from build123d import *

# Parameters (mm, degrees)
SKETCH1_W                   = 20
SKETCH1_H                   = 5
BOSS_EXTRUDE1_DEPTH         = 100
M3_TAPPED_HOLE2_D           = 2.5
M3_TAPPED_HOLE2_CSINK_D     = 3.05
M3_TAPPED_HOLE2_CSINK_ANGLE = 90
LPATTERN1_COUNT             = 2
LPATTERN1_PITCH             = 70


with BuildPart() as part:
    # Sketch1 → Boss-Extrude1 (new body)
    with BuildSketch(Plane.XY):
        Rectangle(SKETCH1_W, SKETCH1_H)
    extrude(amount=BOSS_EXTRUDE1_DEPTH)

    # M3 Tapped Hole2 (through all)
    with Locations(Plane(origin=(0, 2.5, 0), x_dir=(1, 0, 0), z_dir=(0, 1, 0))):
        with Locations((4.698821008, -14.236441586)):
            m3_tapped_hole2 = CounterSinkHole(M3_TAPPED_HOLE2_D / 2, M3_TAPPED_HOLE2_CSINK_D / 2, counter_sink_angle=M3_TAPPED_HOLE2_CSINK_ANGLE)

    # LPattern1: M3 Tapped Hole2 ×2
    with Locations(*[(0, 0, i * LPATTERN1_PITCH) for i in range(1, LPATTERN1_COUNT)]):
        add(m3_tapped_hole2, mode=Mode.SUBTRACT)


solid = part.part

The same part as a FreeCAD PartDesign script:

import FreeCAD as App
import Part
import Sketcher

V = App.Vector
Q = App.Units.Quantity

doc = App.newDocument("Part")
params = doc.addObject("Spreadsheet::Sheet", "Params")
for row, (alias, value) in enumerate([
    ("sketch1_width", "20 mm"),
    ("sketch1_height", "5 mm"),
    ("pad1_length", "100 mm"),
    ("sketch2_diameter", "2.5 mm"),
    ("hole_diameter", "2.5 mm"),
    ("hole_csink_diameter", "3.05 mm"),
    ("linearpattern_pitch", "70 mm"),
], start=1):
    params.set(f"A{row}", alias)
    params.set(f"B{row}", "=" + value)
    params.setAlias(f"B{row}", alias)

body = doc.addObject("PartDesign::Body", "Body")

sketch1 = body.newObject("Sketcher::SketchObject", "Sketch")
sketch1.AttachmentSupport = (doc.getObject("XY_Plane"), [""])
sketch1.MapMode = "FlatFace"
sketch1.addGeometry([
    Part.LineSegment(V(-10, 2.5, 0), V(-10, -2.5, 0)),
    Part.LineSegment(V(-10, -2.5, 0), V(10, -2.5, 0)),
    Part.LineSegment(V(10, -2.5, 0), V(10, 2.5, 0)),
    Part.LineSegment(V(10, 2.5, 0), V(-10, 2.5, 0)),
], False)
sketch1.addConstraint([
    Sketcher.Constraint("Coincident", 0, 2, 1, 1),
    Sketcher.Constraint("Coincident", 1, 2, 2, 1),
    Sketcher.Constraint("Coincident", 2, 2, 3, 1),
    Sketcher.Constraint("Coincident", 3, 2, 0, 1),
    Sketcher.Constraint("Vertical", 0),
    Sketcher.Constraint("Horizontal", 1),
    Sketcher.Constraint("Vertical", 2),
    Sketcher.Constraint("Horizontal", 3),
    Sketcher.Constraint("Symmetric", 0, 2, 2, 2, -1, 1),
    Sketcher.Constraint("DistanceX", 1, 1, 1, 2, Q("20 mm")),
    Sketcher.Constraint("DistanceY", 0, 2, 0, 1, Q("5 mm")),
])
sketch1.setExpression("Constraints[9]", "Params.sketch1_width")
sketch1.setExpression("Constraints[10]", "Params.sketch1_height")
pad1 = body.newObject("PartDesign::Pad", "Pad")
pad1.Profile = sketch1
pad1.setExpression("Length", "Params.pad1_length")

sketch2 = body.newObject("Sketcher::SketchObject", "Sketch001")
sketch2.AttachmentSupport = (doc.getObject("XZ_Plane"), [""])
sketch2.MapMode = "FlatFace"
sketch2.AttachmentOffset = App.Placement(V(0, 0, -2.5), App.Rotation())
sketch2.addGeometry(Part.Circle(V(4.698821, 14.236442, 0), V(0, 0, 1), 1.25), False)
sketch2.addConstraint([
    Sketcher.Constraint("Diameter", 0, Q("2.5 mm")),
    Sketcher.Constraint("DistanceX", -1, 1, 0, 3, Q("4.698821 mm")),
    Sketcher.Constraint("DistanceY", -1, 1, 0, 3, Q("14.236442 mm")),
])
sketch2.setExpression("Constraints[0]", "Params.sketch2_diameter")
doc.recompute()
hole = body.newObject("PartDesign::Hole", "Hole")
hole.Profile = sketch2
hole.ThreadType = "None"
hole.setExpression("Diameter", "Params.hole_diameter")
hole.DepthType = "ThroughAll"
hole.HoleCutType = "Countersink"
hole.setExpression("HoleCutDiameter", "Params.hole_csink_diameter")
hole.HoleCutCountersinkAngle = 90
hole.Reversed = True
doc.recompute()

linearpattern = body.newObject("PartDesign::LinearPattern", "LinearPattern")
linearpattern.Originals = [hole]
linearpattern.Direction = (doc.getObject("Z_Axis"), [""])
linearpattern.Mode = "offset"
linearpattern.setExpression("Offset", "Params.linearpattern_pitch")
linearpattern.Occurrences = 2
body.Tip = linearpattern

doc.recompute()
